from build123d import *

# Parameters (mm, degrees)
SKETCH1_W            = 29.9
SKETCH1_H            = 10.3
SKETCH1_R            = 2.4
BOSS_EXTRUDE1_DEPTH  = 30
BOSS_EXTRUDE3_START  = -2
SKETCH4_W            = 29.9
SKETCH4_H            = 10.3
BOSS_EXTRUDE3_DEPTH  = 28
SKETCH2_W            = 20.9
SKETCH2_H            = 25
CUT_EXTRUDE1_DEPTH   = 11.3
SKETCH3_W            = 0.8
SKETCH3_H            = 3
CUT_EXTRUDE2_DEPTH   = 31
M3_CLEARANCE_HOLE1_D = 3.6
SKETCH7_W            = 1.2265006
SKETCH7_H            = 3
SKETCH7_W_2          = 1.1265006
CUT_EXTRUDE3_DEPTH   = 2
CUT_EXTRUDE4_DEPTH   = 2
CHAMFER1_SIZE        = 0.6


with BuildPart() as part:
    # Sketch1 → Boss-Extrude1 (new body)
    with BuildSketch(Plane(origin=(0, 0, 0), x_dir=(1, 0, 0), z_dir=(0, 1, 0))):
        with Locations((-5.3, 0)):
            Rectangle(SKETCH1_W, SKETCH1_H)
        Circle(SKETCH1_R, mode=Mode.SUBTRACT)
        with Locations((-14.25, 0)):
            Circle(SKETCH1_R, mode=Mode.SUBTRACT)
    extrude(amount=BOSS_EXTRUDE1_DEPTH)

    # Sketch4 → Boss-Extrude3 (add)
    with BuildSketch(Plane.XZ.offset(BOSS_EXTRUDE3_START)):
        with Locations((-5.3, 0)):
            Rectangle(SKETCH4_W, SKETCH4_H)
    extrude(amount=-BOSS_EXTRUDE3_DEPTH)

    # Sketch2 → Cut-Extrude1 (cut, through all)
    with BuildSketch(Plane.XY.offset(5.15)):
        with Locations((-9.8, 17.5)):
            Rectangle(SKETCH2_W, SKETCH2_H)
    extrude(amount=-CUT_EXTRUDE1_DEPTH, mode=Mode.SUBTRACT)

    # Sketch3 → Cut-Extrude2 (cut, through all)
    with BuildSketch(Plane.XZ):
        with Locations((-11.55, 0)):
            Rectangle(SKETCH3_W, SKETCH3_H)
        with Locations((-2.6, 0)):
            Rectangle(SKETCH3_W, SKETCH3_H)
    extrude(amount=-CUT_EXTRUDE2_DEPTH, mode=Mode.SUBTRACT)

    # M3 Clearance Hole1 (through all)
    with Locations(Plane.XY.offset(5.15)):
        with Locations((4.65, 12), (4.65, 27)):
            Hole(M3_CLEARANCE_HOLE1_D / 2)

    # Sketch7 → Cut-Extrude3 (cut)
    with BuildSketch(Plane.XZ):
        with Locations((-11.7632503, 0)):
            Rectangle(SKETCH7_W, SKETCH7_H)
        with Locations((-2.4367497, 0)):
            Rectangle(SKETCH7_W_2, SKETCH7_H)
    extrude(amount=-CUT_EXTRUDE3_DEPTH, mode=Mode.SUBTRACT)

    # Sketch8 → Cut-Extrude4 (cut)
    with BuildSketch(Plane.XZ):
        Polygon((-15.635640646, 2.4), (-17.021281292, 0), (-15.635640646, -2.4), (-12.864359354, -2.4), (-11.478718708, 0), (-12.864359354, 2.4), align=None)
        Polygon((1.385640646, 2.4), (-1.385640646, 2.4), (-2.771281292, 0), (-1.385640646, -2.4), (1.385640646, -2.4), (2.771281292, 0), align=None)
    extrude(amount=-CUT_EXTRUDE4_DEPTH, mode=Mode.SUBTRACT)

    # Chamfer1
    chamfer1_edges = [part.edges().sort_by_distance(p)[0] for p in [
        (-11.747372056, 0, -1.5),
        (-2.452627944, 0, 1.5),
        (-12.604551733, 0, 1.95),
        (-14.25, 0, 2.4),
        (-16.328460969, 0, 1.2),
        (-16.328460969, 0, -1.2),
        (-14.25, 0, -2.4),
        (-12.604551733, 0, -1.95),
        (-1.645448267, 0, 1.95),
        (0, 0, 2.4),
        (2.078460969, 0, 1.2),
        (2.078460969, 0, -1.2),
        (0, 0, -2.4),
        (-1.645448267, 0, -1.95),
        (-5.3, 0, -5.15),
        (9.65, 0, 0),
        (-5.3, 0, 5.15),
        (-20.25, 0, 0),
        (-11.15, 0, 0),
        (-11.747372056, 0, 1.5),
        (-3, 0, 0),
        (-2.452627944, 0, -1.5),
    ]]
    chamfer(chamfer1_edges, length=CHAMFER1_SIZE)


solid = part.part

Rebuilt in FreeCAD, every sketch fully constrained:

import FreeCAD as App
import Part
import Sketcher
Q = App.Units.Quantity


def edges_at(feature, points):
    """Names of the edges that pass closest to the given points."""
    edges = feature.Shape.Edges
    near = lambda p: min(range(len(edges)), key=lambda i: edges[i].distToShape(Part.Vertex(*p))[0])
    return sorted({f"Edge{near(p) + 1}" for p in points})

doc = App.newDocument("Part")
body = doc.addObject("PartDesign::Body", "Body")

sketch1 = body.newObject("Sketcher::SketchObject", "Sketch")
sketch1.AttachmentSupport = (doc.getObject("XZ_Plane"), [""])
sketch1.MapMode = "FlatFace"
sketch1.addGeometry(Part.LineSegment(App.Vector(-20.25, -5.15, 0), App.Vector(-20.25, 5.15, 0)), False)
sketch1.addGeometry(Part.LineSegment(App.Vector(-20.25, 5.15, 0), App.Vector(9.65, 5.15, 0)), False)
sketch1.addGeometry(Part.LineSegment(App.Vector(9.65, 5.15, 0), App.Vector(9.65, -5.15, 0)), False)
sketch1.addGeometry(Part.LineSegment(App.Vector(9.65, -5.15, 0), App.Vector(-20.25, -5.15, 0)), False)
sketch1.addGeometry(Part.Circle(App.Vector(-14.25, 0, 0), App.Vector(0, 0, 1), 2.4), False)
sketch1.addGeometry(Part.Circle(App.Vector(0, 0, 0), App.Vector(0, 0, 1), 2.4), False)
sketch1.addConstraint(Sketcher.Constraint("Coincident", 0, 2, 1, 1))
sketch1.addConstraint(Sketcher.Constraint("Coincident", 1, 2, 2, 1))
sketch1.addConstraint(Sketcher.Constraint("Coincident", 2, 2, 3, 1))
sketch1.addConstraint(Sketcher.Constraint("Coincident", 3, 2, 0, 1))
sketch1.addConstraint(Sketcher.Constraint("Vertical", 0))
sketch1.addConstraint(Sketcher.Constraint("Horizontal", 1))
sketch1.addConstraint(Sketcher.Constraint("Vertical", 2))
sketch1.addConstraint(Sketcher.Constraint("Horizontal", 3))
sketch1.addConstraint(Sketcher.Constraint("Coincident", 5, 3, -1, 1))
sketch1.addConstraint(Sketcher.Constraint("Equal", 4, 5))
sketch1.addConstraint(Sketcher.Constraint("PointOnObject", 4, 3, -1))
sketch1.addConstraint(Sketcher.Constraint("Diameter", 4, 4.8))
sketch1.addConstraint(Sketcher.Constraint("DistanceX", 1, 1, 1, 2, 29.9))
sketch1.addConstraint(Sketcher.Constraint("DistanceY", 0, 1, 0, 2, 10.3))
sketch1.addConstraint(Sketcher.Constraint("DistanceX", 0, 2, 4, 3, 6.0))
sketch1.addConstraint(Sketcher.Constraint("DistanceX", 4, 3, -1, 1, 14.25))
sketch1.addConstraint(Sketcher.Constraint("DistanceY", -1, 1, 0, 2, 5.15))
pad1 = body.newObject("PartDesign::Pad", "Pad")
pad1.Profile = sketch1
pad1.Length = 30
pad1.Reversed = True

sketch2 = body.newObject("Sketcher::SketchObject", "Sketch001")
sketch2.AttachmentSupport = (doc.getObject("XZ_Plane"), [""])
sketch2.MapMode = "FlatFace"
sketch2.AttachmentOffset = App.Placement(App.Vector(0, 0, -2), App.Rotation())
sketch2.addGeometry(Part.LineSegment(App.Vector(-20.25, 5.15, 0), App.Vector(-20.25, -5.15, 0)), False)
sketch2.addGeometry(Part.LineSegment(App.Vector(-20.25, -5.15, 0), App.Vector(9.65, -5.15, 0)), False)
sketch2.addGeometry(Part.LineSegment(App.Vector(9.65, -5.15, 0), App.Vector(9.65, 5.15, 0)), False)
sketch2.addGeometry(Part.LineSegment(App.Vector(9.65, 5.15, 0), App.Vector(-20.25, 5.15, 0)), False)
sketch2.addConstraint(Sketcher.Constraint("Coincident", 0, 2, 1, 1))
sketch2.addConstraint(Sketcher.Constraint("Coincident", 1, 2, 2, 1))
sketch2.addConstraint(Sketcher.Constraint("Coincident", 2, 2, 3, 1))
sketch2.addConstraint(Sketcher.Constraint("Coincident", 3, 2, 0, 1))
sketch2.addConstraint(Sketcher.Constraint("Vertical", 0))
sketch2.addConstraint(Sketcher.Constraint("Horizontal", 1))
sketch2.addConstraint(Sketcher.Constraint("Vertical", 2))
sketch2.addConstraint(Sketcher.Constraint("Horizontal", 3))
sketch2.addConstraint(Sketcher.Constraint("DistanceX", 1, 1, 1, 2, 29.9))
sketch2.addConstraint(Sketcher.Constraint("DistanceY", 0, 2, 0, 1, 10.3))
sketch2.addConstraint(Sketcher.Constraint("DistanceX", 0, 2, -1, 1, 20.25))
sketch2.addConstraint(Sketcher.Constraint("DistanceY", 0, 2, -1, 1, 5.15))
pad2 = body.newObject("PartDesign::Pad", "Pad001")
pad2.Profile = sketch2
pad2.Length = 28
pad2.Reversed = True

sketch3 = body.newObject("Sketcher::SketchObject", "Sketch002")
sketch3.AttachmentSupport = (doc.getObject("XY_Plane"), [""])
sketch3.MapMode = "FlatFace"
sketch3.AttachmentOffset = App.Placement(App.Vector(0, 0, 5.15), App.Rotation())
sketch3.addGeometry(Part.LineSegment(App.Vector(-20.25, 30, 0), App.Vector(-20.25, 5, 0)), False)
sketch3.addGeometry(Part.LineSegment(App.Vector(-20.25, 5, 0), App.Vector(0.65, 5, 0)), False)
sketch3.addGeometry(Part.LineSegment(App.Vector(0.65, 5, 0), App.Vector(0.65, 30, 0)), False)
sketch3.addGeometry(Part.LineSegment(App.Vector(0.65, 30, 0), App.Vector(-20.25, 30, 0)), False)
sketch3.addConstraint(Sketcher.Constraint("Coincident", 0, 2, 1, 1))
sketch3.addConstraint(Sketcher.Constraint("Coincident", 1, 2, 2, 1))
sketch3.addConstraint(Sketcher.Constraint("Coincident", 2, 2, 3, 1))
sketch3.addConstraint(Sketcher.Constraint("Coincident", 3, 2, 0, 1))
sketch3.addConstraint(Sketcher.Constraint("Vertical", 0))
sketch3.addConstraint(Sketcher.Constraint("Horizontal", 1))
sketch3.addConstraint(Sketcher.Constraint("Vertical", 2))
sketch3.addConstraint(Sketcher.Constraint("Horizontal", 3))
sketch3.addConstraint(Sketcher.Constraint("DistanceY", 0, 2, 0, 1, 25.0))
sketch3.addConstraint(Sketcher.Constraint("DistanceX", 1, 1, 1, 2, 20.9))
sketch3.addConstraint(Sketcher.Constraint("DistanceY", -1, 1, 0, 2, 5.0))
sketch3.addConstraint(Sketcher.Constraint("DistanceX", 0, 2, -1, 1, 20.25))
pocket1 = body.newObject("PartDesign::Pocket", "Pocket")
pocket1.Profile = sketch3
pocket1.Type = "ThroughAll"

sketch4 = body.newObject("Sketcher::SketchObject", "Sketch003")
sketch4.AttachmentSupport = (doc.getObject("XZ_Plane"), [""])
sketch4.MapMode = "FlatFace"
sketch4.addGeometry(Part.LineSegment(App.Vector(-11.95, 1.5, 0), App.Vector(-11.95, -1.5, 0)), False)
sketch4.addGeometry(Part.LineSegment(App.Vector(-11.95, -1.5, 0), App.Vector(-11.15, -1.5, 0)), False)
sketch4.addGeometry(Part.LineSegment(App.Vector(-11.15, -1.5, 0), App.Vector(-11.15, 1.5, 0)), False)
sketch4.addGeometry(Part.LineSegment(App.Vector(-11.15, 1.5, 0), App.Vector(-11.95, 1.5, 0)), False)
sketch4.addGeometry(Part.LineSegment(App.Vector(-3, 1.5, 0), App.Vector(-3, -1.5, 0)), False)
sketch4.addGeometry(Part.LineSegment(App.Vector(-3, -1.5, 0), App.Vector(-2.2, -1.5, 0)), False)
sketch4.addGeometry(Part.LineSegment(App.Vector(-2.2, -1.5, 0), App.Vector(-2.2, 1.5, 0)), False)
sketch4.addGeometry(Part.LineSegment(App.Vector(-2.2, 1.5, 0), App.Vector(-3, 1.5, 0)), False)
sketch4.addConstraint(Sketcher.Constraint("Coincident", 0, 2, 1, 1))
sketch4.addConstraint(Sketcher.Constraint("Coincident", 1, 2, 2, 1))
sketch4.addConstraint(Sketcher.Constraint("Coincident", 2, 2, 3, 1))
sketch4.addConstraint(Sketcher.Constraint("Coincident", 3, 2, 0, 1))
sketch4.addConstraint(Sketcher.Constraint("Coincident", 4, 2, 5, 1))
sketch4.addConstraint(Sketcher.Constraint("Coincident", 5, 2, 6, 1))
sketch4.addConstraint(Sketcher.Constraint("Coincident", 6, 2, 7, 1))
sketch4.addConstraint(Sketcher.Constraint("Coincident", 7, 2, 4, 1))
sketch4.addConstraint(Sketcher.Constraint("Vertical", 0))
sketch4.addConstraint(Sketcher.Constraint("Horizontal", 1))
sketch4.addConstraint(Sketcher.Constraint("Vertical", 2))
sketch4.addConstraint(Sketcher.Constraint("Horizontal", 3))
sketch4.addConstraint(Sketcher.Constraint("Vertical", 4))
sketch4.addConstraint(Sketcher.Constraint("Horizontal", 5))
sketch4.addConstraint(Sketcher.Constraint("Vertical", 6))
sketch4.addConstraint(Sketcher.Constraint("Horizontal", 7))
sketch4.addConstraint(Sketcher.Constraint("Horizontal", 1, 2, 4, 2))
sketch4.addConstraint(Sketcher.Constraint("Horizontal", 3, 2, 6, 2))
sketch4.addConstraint(Sketcher.Constraint("Equal", 3, 5))
sketch4.addConstraint(Sketcher.Constraint("DistanceY", 0, 2, 0, 1, 3.0))
sketch4.addConstraint(Sketcher.Constraint("DistanceX", 1, 1, 1, 2, 0.8))
sketch4.addConstraint(Sketcher.Constraint("DistanceX", 4, 2, -1, 1, 3.0))
sketch4.addConstraint(Sketcher.Constraint("DistanceY", 0, 2, -1, 1, 1.5))
sketch4.addConstraint(Sketcher.Constraint("DistanceX", 0, 2, -1, 1, 11.95))
pocket2 = body.newObject("PartDesign::Pocket", "Pocket001")
pocket2.Profile = sketch4
pocket2.Type = "ThroughAll"

sketch5 = body.newObject("Sketcher::SketchObject", "Sketch004")
sketch5.AttachmentSupport = (doc.getObject("XY_Plane"), [""])
sketch5.MapMode = "FlatFace"
sketch5.AttachmentOffset = App.Placement(App.Vector(0, 0, 5.15), App.Rotation())
sketch5.addGeometry(Part.Circle(App.Vector(4.65, 12, 0), App.Vector(0, 0, 1), 1.8), False)
sketch5.addGeometry(Part.Circle(App.Vector(4.65, 27, 0), App.Vector(0, 0, 1), 1.8), False)
sketch5.addConstraint(Sketcher.Constraint("Equal", 0, 1))
sketch5.addConstraint(Sketcher.Constraint("Vertical", 0, 3, 1, 3))
sketch5.addConstraint(Sketcher.Constraint("Diameter", 0, 3.6))
sketch5.addConstraint(Sketcher.Constraint("DistanceY", -1, 1, 0, 3, 12.0))
sketch5.addConstraint(Sketcher.Constraint("DistanceY", -1, 1, 1, 3, 27.0))
sketch5.addConstraint(Sketcher.Constraint("DistanceX", -1, 1, 0, 3, 4.65))
doc.recompute()
hole = body.newObject("PartDesign::Hole", "Hole")
hole.Profile = sketch5
hole.ThreadType = "None"
hole.Diameter = 3.6
hole.DepthType = "ThroughAll"

sketch6 = body.newObject("Sketcher::SketchObject", "Sketch005")
sketch6.AttachmentSupport = (doc.getObject("XZ_Plane"), [""])
sketch6.MapMode = "FlatFace"
sketch6.addGeometry(Part.LineSegment(App.Vector(-12.376501, 1.5, 0), App.Vector(-12.376501, -1.5, 0)), False)
sketch6.addGeometry(Part.LineSegment(App.Vector(-12.376501, -1.5, 0), App.Vector(-11.15, -1.5, 0)), False)
sketch6.addGeometry(Part.LineSegment(App.Vector(-11.15, -1.5, 0), App.Vector(-11.15, 1.5, 0)), False)
sketch6.addGeometry(Part.LineSegment(App.Vector(-11.15, 1.5, 0), App.Vector(-12.376501, 1.5, 0)), False)
sketch6.addGeometry(Part.LineSegment(App.Vector(-3, 1.5, 0), App.Vector(-3, -1.5, 0)), False)
sketch6.addGeometry(Part.LineSegment(App.Vector(-3, -1.5, 0), App.Vector(-1.873499, -1.5, 0)), False)
sketch6.addGeometry(Part.LineSegment(App.Vector(-1.873499, -1.5, 0), App.Vector(-1.873499, 1.5, 0)), False)
sketch6.addGeometry(Part.LineSegment(App.Vector(-1.873499, 1.5, 0), App.Vector(-3, 1.5, 0)), False)
sketch6.addConstraint(Sketcher.Constraint("Coincident", 0, 2, 1, 1))
sketch6.addConstraint(Sketcher.Constraint("Coincident", 1, 2, 2, 1))
sketch6.addConstraint(Sketcher.Constraint("Coincident", 2, 2, 3, 1))
sketch6.addConstraint(Sketcher.Constraint("Coincident", 3, 2, 0, 1))
sketch6.addConstraint(Sketcher.Constraint("Coincident", 4, 2, 5, 1))
sketch6.addConstraint(Sketcher.Constraint("Coincident", 5, 2, 6, 1))
sketch6.addConstraint(Sketcher.Constraint("Coincident", 6, 2, 7, 1))
sketch6.addConstraint(Sketcher.Constraint("Coincident", 7, 2, 4, 1))
sketch6.addConstraint(Sketcher.Constraint("Vertical", 0))
sketch6.addConstraint(Sketcher.Constraint("Horizontal", 1))
sketch6.addConstraint(Sketcher.Constraint("Vertical", 2))
sketch6.addConstraint(Sketcher.Constraint("Horizontal", 3))
sketch6.addConstraint(Sketcher.Constraint("Vertical", 4))
sketch6.addConstraint(Sketcher.Constraint("Horizontal", 5))
sketch6.addConstraint(Sketcher.Constraint("Vertical", 6))
sketch6.addConstraint(Sketcher.Constraint("Horizontal", 7))
sketch6.addConstraint(Sketcher.Constraint("Horizontal", 1, 2, 4, 2))
sketch6.addConstraint(Sketcher.Constraint("Horizontal", 3, 2, 6, 2))
sketch6.addConstraint(Sketcher.Constraint("DistanceY", 0, 2, 0, 1, 3.0))
sketch6.addConstraint(Sketcher.Constraint("DistanceX", 4, 2, -1, 1, 3.0))
sketch6.addConstraint(Sketcher.Constraint("DistanceY", 0, 2, -1, 1, 1.5))
sketch6.addConstraint(Sketcher.Constraint("DistanceX", 1, 2, -1, 1, 11.15))
sketch6.addConstraint(Sketcher.Constraint("DistanceX", 1, 1, 1, 2, 1.226501))
sketch6.addConstraint(Sketcher.Constraint("DistanceX", 5, 1, 5, 2, 1.126501))
pocket3 = body.newObject("PartDesign::Pocket", "Pocket002")
pocket3.Profile = sketch6
pocket3.Length = 2

sketch7 = body.newObject("Sketcher::SketchObject", "Sketch006")
sketch7.AttachmentSupport = (doc.getObject("XZ_Plane"), [""])
sketch7.MapMode = "FlatFace"
sketch7.addGeometry(Part.LineSegment(App.Vector(-15.635641, 2.4, 0), App.Vector(-17.021281, 0, 0)), False)
sketch7.addGeometry(Part.LineSegment(App.Vector(-17.021281, 0, 0), App.Vector(-15.635641, -2.4, 0)), False)
sketch7.addGeometry(Part.LineSegment(App.Vector(-15.635641, -2.4, 0), App.Vector(-12.864359, -2.4, 0)), False)
sketch7.addGeometry(Part.LineSegment(App.Vector(-12.864359, -2.4, 0), App.Vector(-11.478719, 0, 0)), False)
sketch7.addGeometry(Part.LineSegment(App.Vector(-11.478719, 0, 0), App.Vector(-12.864359, 2.4, 0)), False)
sketch7.addGeometry(Part.LineSegment(App.Vector(-12.864359, 2.4, 0), App.Vector(-15.635641, 2.4, 0)), False)
sketch7.addGeometry(Part.LineSegment(App.Vector(1.385641, 2.4, 0), App.Vector(-1.385641, 2.4, 0)), False)
sketch7.addGeometry(Part.LineSegment(App.Vector(-1.385641, 2.4, 0), App.Vector(-2.771281, 0, 0)), False)
sketch7.addGeometry(Part.LineSegment(App.Vector(-2.771281, 0, 0), App.Vector(-1.385641, -2.4, 0)), False)
sketch7.addGeometry(Part.LineSegment(App.Vector(-1.385641, -2.4, 0), App.Vector(1.385641, -2.4, 0)), False)
sketch7.addGeometry(Part.LineSegment(App.Vector(1.385641, -2.4, 0), App.Vector(2.771281, 0, 0)), False)
sketch7.addGeometry(Part.LineSegment(App.Vector(2.771281, 0, 0), App.Vector(1.385641, 2.4, 0)), False)
sketch7.addConstraint(Sketcher.Constraint("Coincident", 0, 2, 1, 1))
sketch7.addConstraint(Sketcher.Constraint("Coincident", 1, 2, 2, 1))
sketch7.addConstraint(Sketcher.Constraint("Coincident", 2, 2, 3, 1))
sketch7.addConstraint(Sketcher.Constraint("Coincident", 3, 2, 4, 1))
sketch7.addConstraint(Sketcher.Constraint("Coincident", 4, 2, 5, 1))
sketch7.addConstraint(Sketcher.Constraint("Coincident", 5, 2, 0, 1))
sketch7.addConstraint(Sketcher.Constraint("Coincident", 6, 2, 7, 1))
sketch7.addConstraint(Sketcher.Constraint("Coincident", 7, 2, 8, 1))
sketch7.addConstraint(Sketcher.Constraint("Coincident", 8, 2, 9, 1))
sketch7.addConstraint(Sketcher.Constraint("Coincident", 9, 2, 10, 1))
sketch7.addConstraint(Sketcher.Constraint("Coincident", 10, 2, 11, 1))
sketch7.addConstraint(Sketcher.Constraint("Coincident", 11, 2, 6, 1))
sketch7.addConstraint(Sketcher.Constraint("Horizontal", 2))
sketch7.addConstraint(Sketcher.Constraint("Horizontal", 5))
sketch7.addConstraint(Sketcher.Constraint("Horizontal", 6))
sketch7.addConstraint(Sketcher.Constraint("Horizontal", 9))
sketch7.addConstraint(Sketcher.Constraint("Symmetric", 6, 2, 9, 2, -1, 1))
sketch7.addConstraint(Sketcher.Constraint("Symmetric", 7, 2, 10, 2, -1, 1))
sketch7.addConstraint(Sketcher.Constraint("Symmetric", 2, 2, 4, 2, -1))
sketch7.addConstraint(Sketcher.Constraint("PointOnObject", 0, 2, -1))
sketch7.addConstraint(Sketcher.Constraint("PointOnObject", 3, 2, -1))
sketch7.addConstraint(Sketcher.Constraint("PointOnObject", 7, 2, -1))
sketch7.addConstraint(Sketcher.Constraint("Parallel", 0, 3))
sketch7.addConstraint(Sketcher.Constraint("Parallel", 1, 4))
sketch7.addConstraint(Sketcher.Constraint("Parallel", 3, 7))
sketch7.addConstraint(Sketcher.Constraint("Parallel", 4, 8))
sketch7.addConstraint(Sketcher.Constraint("Parallel", 8, 11))
sketch7.addConstraint(Sketcher.Constraint("Horizontal", 5, 2, 6, 2))
sketch7.addConstraint(Sketcher.Constraint("Equal", 5, 6))
sketch7.addConstraint(Sketcher.Constraint("Angle", 0, Q("-120 deg")))
sketch7.addConstraint(Sketcher.Constraint("DistanceY", 1, 2, -1, 1, 2.4))
sketch7.addConstraint(Sketcher.Constraint("DistanceX", 5, 2, 6, 2, 14.25))
sketch7.addConstraint(Sketcher.Constraint("DistanceX", 2, 1, 2, 2, 2.771281))
pocket4 = body.newObject("PartDesign::Pocket", "Pocket003")
pocket4.Profile = sketch7
pocket4.Length = 2
doc.recompute()

chamfer = body.newObject("PartDesign::Chamfer", "Chamfer")
chamfer.Base = (pocket4, edges_at(pocket4, [
    (-11.747, 0, -1.5),
    (-2.453, 0, 1.5),
    (-12.605, 0, 1.95),
    (-14.25, 0, 2.4),
    (-16.328, 0, 1.2),
    (-16.328, 0, -1.2),
    (-14.25, 0, -2.4),
    (-12.605, 0, -1.95),
    (-1.645, 0, 1.95),
    (0, 0, 2.4),
    (2.078, 0, 1.2),
    (2.078, 0, -1.2),
    (0, 0, -2.4),
    (-1.645, 0, -1.95),
    (-5.3, 0, -5.15),
    (9.65, 0, 0),
    (-5.3, 0, 5.15),
    (-20.25, 0, 0),
    (-11.15, 0, 0),
    (-11.747, 0, 1.5),
    (-3, 0, 0),
    (-2.453, 0, -1.5),
]))
chamfer.Size = 0.6

doc.recompute()
